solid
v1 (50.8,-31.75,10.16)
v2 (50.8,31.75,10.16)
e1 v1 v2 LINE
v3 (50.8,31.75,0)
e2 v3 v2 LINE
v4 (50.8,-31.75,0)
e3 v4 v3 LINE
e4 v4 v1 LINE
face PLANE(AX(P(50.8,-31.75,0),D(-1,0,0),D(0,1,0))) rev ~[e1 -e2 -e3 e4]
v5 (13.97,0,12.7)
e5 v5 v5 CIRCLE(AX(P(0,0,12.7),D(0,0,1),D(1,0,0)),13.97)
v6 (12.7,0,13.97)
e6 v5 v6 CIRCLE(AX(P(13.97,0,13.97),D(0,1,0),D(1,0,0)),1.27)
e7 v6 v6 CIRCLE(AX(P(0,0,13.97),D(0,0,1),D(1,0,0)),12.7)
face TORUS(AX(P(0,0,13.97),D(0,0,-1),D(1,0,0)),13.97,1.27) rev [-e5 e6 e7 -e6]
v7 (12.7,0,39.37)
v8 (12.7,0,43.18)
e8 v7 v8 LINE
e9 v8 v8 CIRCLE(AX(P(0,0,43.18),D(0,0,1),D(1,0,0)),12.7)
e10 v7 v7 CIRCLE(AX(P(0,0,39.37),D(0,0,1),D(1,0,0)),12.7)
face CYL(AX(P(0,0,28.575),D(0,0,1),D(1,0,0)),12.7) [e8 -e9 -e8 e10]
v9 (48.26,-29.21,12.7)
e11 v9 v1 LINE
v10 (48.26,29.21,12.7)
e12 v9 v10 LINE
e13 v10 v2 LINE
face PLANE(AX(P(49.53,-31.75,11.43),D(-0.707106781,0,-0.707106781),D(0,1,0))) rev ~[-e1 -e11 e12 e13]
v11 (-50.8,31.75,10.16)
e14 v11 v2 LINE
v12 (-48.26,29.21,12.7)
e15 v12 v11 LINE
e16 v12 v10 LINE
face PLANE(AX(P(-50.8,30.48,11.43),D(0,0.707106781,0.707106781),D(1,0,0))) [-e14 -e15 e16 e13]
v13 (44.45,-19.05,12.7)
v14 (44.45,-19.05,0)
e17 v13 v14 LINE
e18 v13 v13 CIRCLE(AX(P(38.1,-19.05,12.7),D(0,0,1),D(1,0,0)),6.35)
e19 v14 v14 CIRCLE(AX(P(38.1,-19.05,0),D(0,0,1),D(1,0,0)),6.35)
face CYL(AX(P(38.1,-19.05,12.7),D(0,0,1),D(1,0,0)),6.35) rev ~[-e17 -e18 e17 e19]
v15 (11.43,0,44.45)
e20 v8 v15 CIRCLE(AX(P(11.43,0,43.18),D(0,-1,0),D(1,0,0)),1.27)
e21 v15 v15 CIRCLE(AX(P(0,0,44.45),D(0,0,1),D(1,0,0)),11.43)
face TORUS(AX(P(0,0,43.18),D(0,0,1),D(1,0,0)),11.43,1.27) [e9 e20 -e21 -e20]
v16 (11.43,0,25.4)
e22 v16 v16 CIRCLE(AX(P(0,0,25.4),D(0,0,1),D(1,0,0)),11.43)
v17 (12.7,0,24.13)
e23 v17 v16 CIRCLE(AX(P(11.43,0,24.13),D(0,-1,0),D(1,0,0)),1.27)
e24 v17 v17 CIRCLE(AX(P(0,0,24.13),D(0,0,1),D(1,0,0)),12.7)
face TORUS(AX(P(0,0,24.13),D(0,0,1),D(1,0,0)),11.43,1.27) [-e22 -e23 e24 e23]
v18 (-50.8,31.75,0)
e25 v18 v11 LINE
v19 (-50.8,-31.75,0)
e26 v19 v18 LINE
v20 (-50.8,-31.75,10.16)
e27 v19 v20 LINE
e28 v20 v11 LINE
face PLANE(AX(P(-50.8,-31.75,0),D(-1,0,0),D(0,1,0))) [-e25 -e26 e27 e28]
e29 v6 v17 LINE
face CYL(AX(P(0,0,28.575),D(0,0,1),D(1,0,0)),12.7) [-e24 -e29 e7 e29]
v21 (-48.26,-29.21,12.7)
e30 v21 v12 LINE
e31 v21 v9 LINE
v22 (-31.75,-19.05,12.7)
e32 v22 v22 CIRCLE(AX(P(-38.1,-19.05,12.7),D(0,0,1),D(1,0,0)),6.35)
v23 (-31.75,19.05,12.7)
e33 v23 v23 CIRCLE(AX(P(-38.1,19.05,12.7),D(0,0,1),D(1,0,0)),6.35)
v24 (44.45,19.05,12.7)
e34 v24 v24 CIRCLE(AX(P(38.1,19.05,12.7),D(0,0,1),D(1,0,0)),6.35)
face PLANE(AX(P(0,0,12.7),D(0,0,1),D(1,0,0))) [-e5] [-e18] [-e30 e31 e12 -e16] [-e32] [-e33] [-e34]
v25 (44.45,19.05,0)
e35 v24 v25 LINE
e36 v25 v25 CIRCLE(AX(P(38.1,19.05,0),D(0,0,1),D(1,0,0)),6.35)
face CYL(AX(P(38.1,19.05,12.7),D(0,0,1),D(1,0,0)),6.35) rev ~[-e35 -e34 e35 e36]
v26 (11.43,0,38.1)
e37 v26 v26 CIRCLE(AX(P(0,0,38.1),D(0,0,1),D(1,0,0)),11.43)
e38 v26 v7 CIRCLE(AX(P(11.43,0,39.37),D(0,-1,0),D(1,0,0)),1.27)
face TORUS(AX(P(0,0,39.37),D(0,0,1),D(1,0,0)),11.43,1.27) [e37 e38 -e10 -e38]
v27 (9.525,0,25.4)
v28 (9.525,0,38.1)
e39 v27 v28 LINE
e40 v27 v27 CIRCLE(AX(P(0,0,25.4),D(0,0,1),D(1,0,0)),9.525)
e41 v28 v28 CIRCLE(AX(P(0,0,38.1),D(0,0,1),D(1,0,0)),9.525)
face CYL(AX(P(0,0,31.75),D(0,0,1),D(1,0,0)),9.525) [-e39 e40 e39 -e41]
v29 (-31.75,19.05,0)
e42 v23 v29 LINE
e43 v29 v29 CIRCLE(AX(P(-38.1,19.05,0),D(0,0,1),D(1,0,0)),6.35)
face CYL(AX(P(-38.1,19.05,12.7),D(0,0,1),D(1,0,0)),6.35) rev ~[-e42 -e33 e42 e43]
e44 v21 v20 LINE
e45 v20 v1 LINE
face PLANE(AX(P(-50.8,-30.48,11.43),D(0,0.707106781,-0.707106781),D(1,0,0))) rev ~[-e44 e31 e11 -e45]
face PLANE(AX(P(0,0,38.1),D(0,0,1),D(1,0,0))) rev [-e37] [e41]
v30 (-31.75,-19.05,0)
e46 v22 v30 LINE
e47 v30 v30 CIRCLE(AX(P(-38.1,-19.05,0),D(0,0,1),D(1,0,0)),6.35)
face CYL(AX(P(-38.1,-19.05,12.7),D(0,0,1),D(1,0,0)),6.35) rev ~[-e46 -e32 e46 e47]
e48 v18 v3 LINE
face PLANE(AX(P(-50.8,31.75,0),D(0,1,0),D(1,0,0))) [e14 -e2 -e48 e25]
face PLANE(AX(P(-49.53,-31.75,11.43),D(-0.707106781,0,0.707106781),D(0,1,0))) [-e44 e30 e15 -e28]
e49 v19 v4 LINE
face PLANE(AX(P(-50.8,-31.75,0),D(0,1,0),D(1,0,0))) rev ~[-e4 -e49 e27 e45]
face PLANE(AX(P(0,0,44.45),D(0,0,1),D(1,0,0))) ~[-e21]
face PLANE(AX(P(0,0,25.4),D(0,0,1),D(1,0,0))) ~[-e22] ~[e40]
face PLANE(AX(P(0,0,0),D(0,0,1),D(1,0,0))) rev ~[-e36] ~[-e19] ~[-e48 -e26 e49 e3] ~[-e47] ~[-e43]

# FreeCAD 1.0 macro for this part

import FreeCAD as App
import Part
import Sketcher
from FreeCAD import Vector
Q = App.Units.Quantity


def edges_at(feature, points):
    """Names of the edges that pass closest to the given points."""
    edges = feature.Shape.Edges
    near = lambda p: min(range(len(edges)), key=lambda i: edges[i].distToShape(Part.Vertex(*p))[0])
    return sorted({f"Edge{near(p) + 1}" for p in points})

doc = App.newDocument("Part")
body = doc.addObject("PartDesign::Body", "Body")

sketch1 = body.newObject("Sketcher::SketchObject", "Sketch")
sketch1.AttachmentSupport = (doc.getObject("XY_Plane"), [""])
sketch1.MapMode = "FlatFace"
sketch1.addGeometry([
    Part.LineSegment(Vector(-51, 32, 0), Vector(-51, -32, 0)),
    Part.LineSegment(Vector(-51, -32, 0), Vector(51, -32, 0)),
    Part.LineSegment(Vector(51, -32, 0), Vector(51, 32, 0)),
    Part.LineSegment(Vector(51, 32, 0), Vector(-51, 32, 0)),
], False)
sketch1.addConstraint([
    Sketcher.Constraint("Coincident", 0, 2, 1, 1),
    Sketcher.Constraint("Coincident", 1, 2, 2, 1),
    Sketcher.Constraint("Coincident", 2, 2, 3, 1),
    Sketcher.Constraint("Coincident", 3, 2, 0, 1),
    Sketcher.Constraint("Vertical", 0),
    Sketcher.Constraint("Horizontal", 1),
    Sketcher.Constraint("Vertical", 2),
    Sketcher.Constraint("Horizontal", 3),
    Sketcher.Constraint("Symmetric", 0, 2, 2, 2, -1, 1),
    Sketcher.Constraint("DistanceX", 1, 1, 1, 2, Q("4 in")),
    Sketcher.Constraint("DistanceY", 0, 2, 0, 1, Q("2.5 in")),
])
pad1 = body.newObject("PartDesign::Pad", "Pad")
pad1.Profile = sketch1
pad1.Length = Q("0.5 in")

sketch2 = body.newObject("Sketcher::SketchObject", "Sketch001")
sketch2.AttachmentSupport = (doc.getObject("XY_Plane"), [""])
sketch2.MapMode = "FlatFace"
sketch2.AttachmentOffset = App.Placement(Vector(0, 0, 0.5 * 25.4), App.Rotation())
sketch2.addGeometry([
    Part.Circle(Vector(-38, 19, 0), Vector(0, 0, 1), 6),
    Part.Circle(Vector(-38, -19, 0), Vector(0, 0, 1), 6),
    Part.Circle(Vector(38, 19, 0), Vector(0, 0, 1), 6),
    Part.Circle(Vector(38, -19, 0), Vector(0, 0, 1), 6),
], False)
sketch2.addConstraint([
    Sketcher.Constraint("Equal", 0, 1),
    Sketcher.Constraint("Equal", 1, 2),
    Sketcher.Constraint("Equal", 2, 3),
    Sketcher.Constraint("Symmetric", 1, 3, 2, 3, -1, 1),
    Sketcher.Constraint("Symmetric", 0, 3, 3, 3, -1, 1),
    Sketcher.Constraint("Symmetric", 0, 3, 2, 3, -2),
    Sketcher.Constraint("Diameter", 0, Q("0.5 in")),
    Sketcher.Constraint("DistanceX", 0, 3, 2, 3, Q("3 in")),
    Sketcher.Constraint("DistanceY", 1, 3, 0, 3, Q("1.5 in")),
])
pocket1 = body.newObject("PartDesign::Pocket", "Pocket")
pocket1.Profile = sketch2
pocket1.Type = "ThroughAll"

sketch3 = body.newObject("Sketcher::SketchObject", "Sketch002")
sketch3.AttachmentSupport = (doc.getObject("XZ_Plane"), [""])
sketch3.MapMode = "FlatFace"
sketch3.addGeometry([
    Part.LineSegment(Vector(0, 44, 0), Vector(0, 13, 0)),
    Part.LineSegment(Vector(0, 13, 0), Vector(13, 13, 0)),
    Part.LineSegment(Vector(13, 13, 0), Vector(13, 44, 0)),
    Part.LineSegment(Vector(13, 44, 0), Vector(0, 44, 0)),
], False)
sketch3.addConstraint([
    Sketcher.Constraint("Coincident", 0, 2, 1, 1),
    Sketcher.Constraint("Coincident", 1, 2, 2, 1),
    Sketcher.Constraint("Coincident", 2, 2, 3, 1),
    Sketcher.Constraint("Coincident", 3, 2, 0, 1),
    Sketcher.Constraint("Vertical", 0),
    Sketcher.Constraint("Horizontal", 1),
    Sketcher.Constraint("Vertical", 2),
    Sketcher.Constraint("Horizontal", 3),
    Sketcher.Constraint("PointOnObject", 0, 2, -2),
    Sketcher.Constraint("DistanceX", 1, 1, 1, 2, Q("0.5 in")),
    Sketcher.Constraint("DistanceY", 0, 2, 0, 1, Q("1.25 in")),
    Sketcher.Constraint("DistanceY", -1, 1, 0, 2, Q("0.5 in")),
])
revolution = body.newObject("PartDesign::Revolution", "Revolution")
revolution.Profile = sketch3
revolution.ReferenceAxis = (sketch3, ["V_Axis"])
revolution.Angle = 360

sketch4 = body.newObject("Sketcher::SketchObject", "Sketch003")
sketch4.AttachmentSupport = (doc.getObject("XZ_Plane"), [""])
sketch4.MapMode = "FlatFace"
sketch4.addGeometry([
    Part.LineSegment(Vector(9.5, 38.1, 0), Vector(9.5, 25.4, 0)),
    Part.LineSegment(Vector(9.5, 25.4, 0), Vector(12.7, 25.4, 0)),
    Part.LineSegment(Vector(12.7, 25.4, 0), Vector(12.7, 38.1, 0)),
    Part.LineSegment(Vector(12.7, 38.1, 0), Vector(9.5, 38.1, 0)),
], False)
sketch4.addConstraint([
    Sketcher.Constraint("Coincident", 0, 2, 1, 1),
    Sketcher.Constraint("Coincident", 1, 2, 2, 1),
    Sketcher.Constraint("Coincident", 2, 2, 3, 1),
    Sketcher.Constraint("Coincident", 3, 2, 0, 1),
    Sketcher.Constraint("Vertical", 0),
    Sketcher.Constraint("Horizontal", 1),
    Sketcher.Constraint("Vertical", 2),
    Sketcher.Constraint("Horizontal", 3),
    Sketcher.Constraint("DistanceY", 0, 2, 0, 1, Q("0.5 in")),
    Sketcher.Constraint("DistanceY", -1, 1, 0, 2, Q("1 in")),
    Sketcher.Constraint("DistanceX", -1, 1, 1, 2, Q("0.5 in")),
    Sketcher.Constraint("DistanceX", 1, 1, 1, 2, Q("0.125 in")),
])
groove = body.newObject("PartDesign::Groove", "Groove")
groove.Profile = sketch4
groove.ReferenceAxis = (sketch4, ["V_Axis"])
groove.Angle = 360
doc.recompute()

fillet = body.newObject("PartDesign::Fillet", "Fillet")
fillet.Base = (groove, edges_at(groove, [
    (-12.7, 0, 12.7),
    (-12.7, 0, 44.45),
    (-12.7, 0, 38.1),
    (-12.7, 0, 25.4),
]))
fillet.Radius = Q("0.05 in")
doc.recompute()

chamfer = body.newObject("PartDesign::Chamfer", "Chamfer")
chamfer.Base = (fillet, edges_at(fillet, [
    (0, -31.75, 12.7),
    (50.8, 0, 12.7),
    (0, 31.75, 12.7),
    (-50.8, 0, 12.7),
]))
chamfer.Size = Q("0.1 in")

doc.recompute()
